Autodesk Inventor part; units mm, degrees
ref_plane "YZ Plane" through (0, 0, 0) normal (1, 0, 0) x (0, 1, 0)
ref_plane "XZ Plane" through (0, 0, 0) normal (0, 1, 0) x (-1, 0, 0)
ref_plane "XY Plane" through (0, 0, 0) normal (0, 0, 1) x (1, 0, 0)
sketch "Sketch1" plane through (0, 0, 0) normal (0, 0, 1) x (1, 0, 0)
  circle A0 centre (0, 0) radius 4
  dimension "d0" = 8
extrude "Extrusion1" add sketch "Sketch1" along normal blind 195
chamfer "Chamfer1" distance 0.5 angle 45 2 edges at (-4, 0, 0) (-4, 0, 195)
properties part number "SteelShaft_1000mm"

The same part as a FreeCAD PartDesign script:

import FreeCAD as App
import Part
import Sketcher
Q = App.Units.Quantity


def edges_at(feature, points):
    """Names of the edges that pass closest to the given points."""
    edges = feature.Shape.Edges
    near = lambda p: min(range(len(edges)), key=lambda i: edges[i].distToShape(Part.Vertex(*p))[0])
    return sorted({f"Edge{near(p) + 1}" for p in points})

doc = App.newDocument("Part")
body = doc.addObject("PartDesign::Body", "Body")

# Sketch on XY plane
sketch1 = doc.addObject("Sketcher::SketchObject", "Sketch")
body.addObject(sketch1)
sketch1.AttachmentSupport = (doc.XY_Plane, [""])
sketch1.MapMode = "FlatFace"
sketch1.addGeometry(Part.Circle(App.Vector(0, 0, 0), App.Vector(0, 0, 1), 4), False)
sketch1.addConstraint([
    Sketcher.Constraint("Coincident", 0, 3, -1, 1),
    Sketcher.Constraint("Diameter", 0, Q("8 mm")),
])
pad1 = doc.addObject("PartDesign::Pad", "Pad")
body.addObject(pad1)
pad1.Profile = sketch1
pad1.Length = 195
doc.recompute()

chamfer = doc.addObject("PartDesign::Chamfer", "Chamfer")
body.addObject(chamfer)
chamfer.Base = (pad1, edges_at(pad1, [(-4, 0, 0), (-4, 0, 195)]))
chamfer.Size = 0.5

doc.recompute()
